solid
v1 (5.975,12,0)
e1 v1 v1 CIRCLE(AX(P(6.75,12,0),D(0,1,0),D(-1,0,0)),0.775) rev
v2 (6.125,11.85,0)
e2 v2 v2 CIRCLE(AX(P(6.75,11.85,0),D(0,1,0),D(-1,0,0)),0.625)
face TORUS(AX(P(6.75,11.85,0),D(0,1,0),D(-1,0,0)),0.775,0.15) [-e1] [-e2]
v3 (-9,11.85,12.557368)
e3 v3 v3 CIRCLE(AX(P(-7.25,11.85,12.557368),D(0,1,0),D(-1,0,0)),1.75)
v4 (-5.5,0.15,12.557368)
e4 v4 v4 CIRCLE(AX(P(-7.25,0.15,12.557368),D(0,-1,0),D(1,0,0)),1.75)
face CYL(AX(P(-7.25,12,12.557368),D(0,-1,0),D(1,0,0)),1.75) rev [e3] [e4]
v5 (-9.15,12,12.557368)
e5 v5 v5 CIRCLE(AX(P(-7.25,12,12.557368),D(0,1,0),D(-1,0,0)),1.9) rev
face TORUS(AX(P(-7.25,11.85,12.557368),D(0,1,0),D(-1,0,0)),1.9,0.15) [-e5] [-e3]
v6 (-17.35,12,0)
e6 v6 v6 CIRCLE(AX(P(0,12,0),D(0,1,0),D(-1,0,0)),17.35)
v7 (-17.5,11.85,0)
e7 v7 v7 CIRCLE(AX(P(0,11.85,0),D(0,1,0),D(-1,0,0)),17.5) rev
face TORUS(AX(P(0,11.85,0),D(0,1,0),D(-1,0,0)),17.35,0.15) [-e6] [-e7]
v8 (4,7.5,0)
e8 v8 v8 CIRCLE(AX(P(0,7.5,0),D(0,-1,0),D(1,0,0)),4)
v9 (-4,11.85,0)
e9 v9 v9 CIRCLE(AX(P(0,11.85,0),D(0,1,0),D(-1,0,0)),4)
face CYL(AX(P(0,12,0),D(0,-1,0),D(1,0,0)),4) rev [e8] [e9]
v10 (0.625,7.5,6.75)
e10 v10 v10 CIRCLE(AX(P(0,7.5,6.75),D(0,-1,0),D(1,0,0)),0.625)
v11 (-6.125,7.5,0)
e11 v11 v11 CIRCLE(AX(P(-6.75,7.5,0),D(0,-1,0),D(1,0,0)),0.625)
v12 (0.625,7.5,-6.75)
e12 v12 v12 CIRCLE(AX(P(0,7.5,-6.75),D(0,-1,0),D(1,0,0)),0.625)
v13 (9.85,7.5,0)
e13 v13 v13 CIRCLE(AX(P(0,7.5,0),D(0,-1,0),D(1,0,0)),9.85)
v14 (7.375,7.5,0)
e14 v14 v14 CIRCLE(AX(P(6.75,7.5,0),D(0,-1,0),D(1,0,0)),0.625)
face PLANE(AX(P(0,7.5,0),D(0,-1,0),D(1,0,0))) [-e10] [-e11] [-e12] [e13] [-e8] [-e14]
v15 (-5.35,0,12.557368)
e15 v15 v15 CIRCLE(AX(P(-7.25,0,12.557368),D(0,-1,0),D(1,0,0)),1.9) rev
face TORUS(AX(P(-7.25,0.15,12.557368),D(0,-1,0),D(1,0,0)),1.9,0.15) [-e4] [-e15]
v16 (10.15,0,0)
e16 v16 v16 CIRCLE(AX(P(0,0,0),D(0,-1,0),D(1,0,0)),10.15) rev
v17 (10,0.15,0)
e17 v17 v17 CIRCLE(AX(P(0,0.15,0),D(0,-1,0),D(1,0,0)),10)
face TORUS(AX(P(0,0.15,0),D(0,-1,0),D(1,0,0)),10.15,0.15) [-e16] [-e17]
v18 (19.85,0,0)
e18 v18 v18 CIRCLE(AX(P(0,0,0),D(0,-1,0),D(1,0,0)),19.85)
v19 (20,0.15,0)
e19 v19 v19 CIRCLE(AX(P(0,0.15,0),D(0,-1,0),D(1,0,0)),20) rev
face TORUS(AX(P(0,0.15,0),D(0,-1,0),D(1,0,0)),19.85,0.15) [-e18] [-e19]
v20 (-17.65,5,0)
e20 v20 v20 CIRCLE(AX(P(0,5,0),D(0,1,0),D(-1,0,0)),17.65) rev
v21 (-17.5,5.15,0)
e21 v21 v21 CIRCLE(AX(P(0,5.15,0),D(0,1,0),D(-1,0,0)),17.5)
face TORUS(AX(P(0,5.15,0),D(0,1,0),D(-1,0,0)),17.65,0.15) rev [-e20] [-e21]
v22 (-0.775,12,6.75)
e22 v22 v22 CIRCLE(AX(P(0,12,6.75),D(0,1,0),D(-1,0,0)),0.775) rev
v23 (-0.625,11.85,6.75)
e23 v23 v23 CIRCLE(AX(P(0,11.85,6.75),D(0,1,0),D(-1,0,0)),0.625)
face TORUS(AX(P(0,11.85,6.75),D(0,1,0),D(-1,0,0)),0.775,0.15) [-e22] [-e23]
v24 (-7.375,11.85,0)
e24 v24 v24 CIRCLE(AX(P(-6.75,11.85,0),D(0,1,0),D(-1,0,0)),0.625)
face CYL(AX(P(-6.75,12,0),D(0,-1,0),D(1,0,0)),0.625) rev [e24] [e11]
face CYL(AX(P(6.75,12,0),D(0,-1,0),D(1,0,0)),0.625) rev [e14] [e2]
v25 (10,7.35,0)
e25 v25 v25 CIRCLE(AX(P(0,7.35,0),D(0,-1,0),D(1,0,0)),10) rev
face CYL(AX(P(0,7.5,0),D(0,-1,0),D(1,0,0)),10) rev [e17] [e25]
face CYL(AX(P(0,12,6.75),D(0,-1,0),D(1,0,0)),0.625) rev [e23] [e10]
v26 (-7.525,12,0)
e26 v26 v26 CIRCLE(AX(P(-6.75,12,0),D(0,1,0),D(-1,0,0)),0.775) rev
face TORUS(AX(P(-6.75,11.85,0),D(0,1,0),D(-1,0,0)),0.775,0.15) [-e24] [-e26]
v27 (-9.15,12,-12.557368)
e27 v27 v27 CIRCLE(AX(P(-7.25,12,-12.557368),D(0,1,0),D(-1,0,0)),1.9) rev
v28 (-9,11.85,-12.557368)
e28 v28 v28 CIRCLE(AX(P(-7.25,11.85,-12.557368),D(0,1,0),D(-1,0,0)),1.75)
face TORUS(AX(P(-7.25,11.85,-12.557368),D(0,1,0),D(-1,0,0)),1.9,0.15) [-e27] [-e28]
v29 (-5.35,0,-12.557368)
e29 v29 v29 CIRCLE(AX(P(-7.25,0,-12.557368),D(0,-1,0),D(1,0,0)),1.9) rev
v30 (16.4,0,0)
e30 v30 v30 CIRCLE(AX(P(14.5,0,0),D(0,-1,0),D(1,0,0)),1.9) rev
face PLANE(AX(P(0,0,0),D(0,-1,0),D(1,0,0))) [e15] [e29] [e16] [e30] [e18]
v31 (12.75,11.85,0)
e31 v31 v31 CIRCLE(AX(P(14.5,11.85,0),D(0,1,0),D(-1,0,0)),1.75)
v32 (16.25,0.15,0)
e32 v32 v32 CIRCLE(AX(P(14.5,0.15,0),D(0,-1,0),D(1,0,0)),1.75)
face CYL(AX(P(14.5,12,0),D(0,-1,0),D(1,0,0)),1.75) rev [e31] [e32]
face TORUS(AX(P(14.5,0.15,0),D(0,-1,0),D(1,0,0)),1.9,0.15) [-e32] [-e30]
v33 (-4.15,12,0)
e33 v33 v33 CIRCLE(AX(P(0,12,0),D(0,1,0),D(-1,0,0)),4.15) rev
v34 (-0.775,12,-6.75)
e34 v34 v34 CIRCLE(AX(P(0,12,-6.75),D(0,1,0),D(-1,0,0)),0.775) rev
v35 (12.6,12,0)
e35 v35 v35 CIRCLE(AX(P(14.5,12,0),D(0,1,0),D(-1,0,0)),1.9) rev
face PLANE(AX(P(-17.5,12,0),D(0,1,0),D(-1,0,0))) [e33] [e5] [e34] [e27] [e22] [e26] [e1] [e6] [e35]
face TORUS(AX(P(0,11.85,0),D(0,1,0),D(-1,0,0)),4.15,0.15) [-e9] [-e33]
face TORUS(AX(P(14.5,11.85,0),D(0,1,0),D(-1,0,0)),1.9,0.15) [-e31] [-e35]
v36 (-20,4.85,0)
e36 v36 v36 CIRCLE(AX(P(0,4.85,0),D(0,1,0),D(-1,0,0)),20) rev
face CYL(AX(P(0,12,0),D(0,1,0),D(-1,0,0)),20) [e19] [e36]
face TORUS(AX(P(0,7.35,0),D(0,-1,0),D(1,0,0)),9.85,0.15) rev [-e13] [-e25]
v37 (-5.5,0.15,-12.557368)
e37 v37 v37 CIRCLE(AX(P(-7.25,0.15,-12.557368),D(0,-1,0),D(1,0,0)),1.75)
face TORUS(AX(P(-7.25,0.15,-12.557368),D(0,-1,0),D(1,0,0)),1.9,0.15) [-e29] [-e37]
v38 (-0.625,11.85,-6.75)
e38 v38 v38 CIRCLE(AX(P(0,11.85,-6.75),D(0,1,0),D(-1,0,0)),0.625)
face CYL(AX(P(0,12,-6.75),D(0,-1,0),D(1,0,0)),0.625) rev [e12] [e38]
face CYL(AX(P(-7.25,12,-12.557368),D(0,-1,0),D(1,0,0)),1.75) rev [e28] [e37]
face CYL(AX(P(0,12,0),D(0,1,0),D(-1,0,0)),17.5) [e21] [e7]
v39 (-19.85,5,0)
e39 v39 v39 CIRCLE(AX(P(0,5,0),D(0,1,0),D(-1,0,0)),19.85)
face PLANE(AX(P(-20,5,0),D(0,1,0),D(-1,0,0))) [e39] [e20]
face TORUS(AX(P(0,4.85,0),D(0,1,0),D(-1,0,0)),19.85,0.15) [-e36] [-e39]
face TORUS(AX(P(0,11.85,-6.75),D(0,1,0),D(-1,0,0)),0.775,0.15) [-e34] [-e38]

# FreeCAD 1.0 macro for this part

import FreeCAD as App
import Part
import Sketcher

V = App.Vector


def edges_at(feature, points):
    """Names of the edges that pass closest to the given points."""
    edges = feature.Shape.Edges
    near = lambda p: min(range(len(edges)), key=lambda i: edges[i].distToShape(Part.Vertex(*p))[0])
    return sorted({f"Edge{near(p) + 1}" for p in points})

doc = App.newDocument("Part")
body = doc.addObject("PartDesign::Body", "Body")

sketch1 = body.newObject("Sketcher::SketchObject", "Sketch")
sketch1.AttachmentSupport = (doc.getObject("XY_Plane"), [""])
sketch1.MapMode = "FlatFace"
sketch1.addGeometry([
    Part.LineSegment(V(-20, 0, 0), V(0, 0, 0)),
    Part.LineSegment(V(0, 0, 0), V(0, 12, 0)),
    Part.LineSegment(V(0, 12, 0), V(-17.5, 12, 0)),
    Part.LineSegment(V(-17.5, 12, 0), V(-17.5, 5, 0)),
    Part.LineSegment(V(-17.5, 5, 0), V(-20, 5, 0)),
    Part.LineSegment(V(-20, 5, 0), V(-20, 0, 0)),
], False)
sketch1.addConstraint([
    Sketcher.Constraint("Coincident", 0, 2, 1, 1),
    Sketcher.Constraint("Coincident", 1, 2, 2, 1),
    Sketcher.Constraint("Coincident", 2, 2, 3, 1),
    Sketcher.Constraint("Coincident", 3, 2, 4, 1),
    Sketcher.Constraint("Coincident", 4, 2, 5, 1),
    Sketcher.Constraint("Coincident", 5, 2, 0, 1),
    Sketcher.Constraint("Horizontal", 0),
    Sketcher.Constraint("Vertical", 1),
    Sketcher.Constraint("Horizontal", 2),
    Sketcher.Constraint("Vertical", 3),
    Sketcher.Constraint("Horizontal", 4),
    Sketcher.Constraint("Vertical", 5),
    Sketcher.Constraint("Coincident", 0, 2, -1, 1),
    Sketcher.Constraint("DistanceX", 0, 1, 0, 2, 20.0),
    Sketcher.Constraint("DistanceY", 1, 1, 1, 2, 12.0),
    Sketcher.Constraint("DistanceY", 3, 2, 3, 1, 7.0),
    Sketcher.Constraint("DistanceX", 2, 2, 2, 1, 17.5),
])
revolution = body.newObject("PartDesign::Revolution", "Revolution")
revolution.Profile = sketch1
revolution.ReferenceAxis = (sketch1, ["V_Axis"])
revolution.Angle = 360

sketch2 = body.newObject("Sketcher::SketchObject", "Sketch001")
sketch2.AttachmentSupport = (doc.getObject("XZ_Plane"), [""])
sketch2.MapMode = "FlatFace"
sketch2.addGeometry([
    Part.Circle(V(14.5, 0, 0), V(0, 0, 1), 1.75),
    Part.Circle(V(-7.25, -12.557368, 0), V(0, 0, 1), 1.75),
    Part.Circle(V(-7.25, 12.557368, 0), V(0, 0, 1), 1.75),
    Part.Circle(V(0, 0, 0), V(0, 0, 1), 4),
    Part.Circle(V(6.75, 0, 0), V(0, 0, 1), 0.625),
    Part.Circle(V(0, -6.75, 0), V(0, 0, 1), 0.625),
    Part.Circle(V(-6.75, 0, 0), V(0, 0, 1), 0.625),
    Part.Circle(V(0, 6.75, 0), V(0, 0, 1), 0.625),
], False)
sketch2.addConstraint([
    Sketcher.Constraint("Coincident", 3, 3, -1, 1),
    Sketcher.Constraint("Equal", 0, 1),
    Sketcher.Constraint("Equal", 1, 2),
    Sketcher.Constraint("Equal", 4, 5),
    Sketcher.Constraint("Equal", 5, 6),
    Sketcher.Constraint("Equal", 6, 7),
    Sketcher.Constraint("Symmetric", 4, 3, 6, 3, -1, 1),
    Sketcher.Constraint("Symmetric", 5, 3, 7, 3, -1, 1),
    Sketcher.Constraint("Symmetric", 1, 3, 2, 3, -1),
    Sketcher.Constraint("PointOnObject", 0, 3, -1),
    Sketcher.Constraint("PointOnObject", 4, 3, -1),
    Sketcher.Constraint("PointOnObject", 5, 3, -2),
    Sketcher.Constraint("Diameter", 3, 8.0),
    Sketcher.Constraint("Diameter", 0, 3.5),
    Sketcher.Constraint("Diameter", 4, 1.25),
    Sketcher.Constraint("DistanceX", 1, 3, 4, 3, 14.0),
    Sketcher.Constraint("DistanceX", -1, 1, 0, 3, 14.5),
    Sketcher.Constraint("DistanceX", 1, 3, 6, 3, 0.5),
    Sketcher.Constraint("DistanceY", 5, 3, 7, 3, 13.5),
    Sketcher.Constraint("DistanceY", 1, 3, -1, 1, 12.557368),
])
pocket1 = body.newObject("PartDesign::Pocket", "Pocket")
pocket1.Profile = sketch2
pocket1.Type = "ThroughAll"

sketch3 = body.newObject("Sketcher::SketchObject", "Sketch002")
sketch3.AttachmentSupport = (doc.getObject("XZ_Plane"), [""])
sketch3.MapMode = "FlatFace"
sketch3.addGeometry([
    Part.Circle(V(0, 0, 0), V(0, 0, 1), 10),
    Part.Circle(V(0, -6.75, 0), V(0, 0, 1), 0.625),
    Part.Circle(V(-6.75, 0, 0), V(0, 0, 1), 0.625),
    Part.Circle(V(0, 0, 0), V(0, 0, 1), 4),
    Part.Circle(V(6.75, 0, 0), V(0, 0, 1), 0.625),
    Part.Circle(V(0, 6.75, 0), V(0, 0, 1), 0.625),
    Part.Circle(V(14.5, 0, 0), V(0, 0, 1), 1.75),
    Part.Circle(V(-7.25, -12.557368, 0), V(0, 0, 1), 1.75),
    Part.Circle(V(-7.25, 12.557368, 0), V(0, 0, 1), 1.75),
], False)
sketch3.addConstraint([
    Sketcher.Constraint("Coincident", 0, 3, -1, 1),
    Sketcher.Constraint("Coincident", 3, 3, -1, 1),
    Sketcher.Constraint("Equal", 1, 2),
    Sketcher.Constraint("Equal", 2, 4),
    Sketcher.Constraint("Equal", 4, 5),
    Sketcher.Constraint("Equal", 6, 7),
    Sketcher.Constraint("Equal", 7, 8),
    Sketcher.Constraint("Symmetric", 2, 3, 4, 3, -1, 1),
    Sketcher.Constraint("Symmetric", 1, 3, 5, 3, -1, 1),
    Sketcher.Constraint("Symmetric", 7, 3, 8, 3, -1),
    Sketcher.Constraint("PointOnObject", 1, 3, -2),
    Sketcher.Constraint("PointOnObject", 2, 3, -1),
    Sketcher.Constraint("PointOnObject", 6, 3, -1),
    Sketcher.Constraint("Diameter", 0, 20.0),
    Sketcher.Constraint("Diameter", 3, 8.0),
    Sketcher.Constraint("Diameter", 6, 3.5),
    Sketcher.Constraint("Diameter", 1, 1.25),
    Sketcher.Constraint("DistanceX", 7, 3, 4, 3, 14.0),
    Sketcher.Constraint("DistanceX", -1, 1, 6, 3, 14.5),
    Sketcher.Constraint("DistanceX", 2, 3, 4, 3, 13.5),
    Sketcher.Constraint("DistanceY", 1, 3, 5, 3, 13.5),
    Sketcher.Constraint("DistanceY", 7, 3, -1, 1, 12.557368),
])
pocket2 = body.newObject("PartDesign::Pocket", "Pocket001")
pocket2.Profile = sketch3
pocket2.Length = 7.5
doc.recompute()

fillet = body.newObject("PartDesign::Fillet", "Fillet")
fillet.Base = (pocket2, edges_at(pocket2, [
    (-9, 0, 12.557),
    (-9, 0, -12.557),
    (12.75, 0, 0),
    (17.5, 12, 0),
    (-10, 0, 0),
    (17.5, 5, 0),
    (20, 5, 0),
    (20, 0, 0),
]))
fillet.Radius = 0.15
doc.recompute()

fillet2 = body.newObject("PartDesign::Fillet", "Fillet001")
fillet2.Base = (fillet, edges_at(fillet, [
    (-9, 12, 12.557),
    (-9, 12, -12.557),
    (-0.625, 12, -6.75),
    (6.125, 12, 0),
    (-4, 12, 0),
    (12.75, 12, 0),
    (-0.625, 12, 6.75),
    (-7.375, 12, 0),
    (-10, 7.5, 0),
]))
fillet2.Radius = 0.15

doc.recompute()
